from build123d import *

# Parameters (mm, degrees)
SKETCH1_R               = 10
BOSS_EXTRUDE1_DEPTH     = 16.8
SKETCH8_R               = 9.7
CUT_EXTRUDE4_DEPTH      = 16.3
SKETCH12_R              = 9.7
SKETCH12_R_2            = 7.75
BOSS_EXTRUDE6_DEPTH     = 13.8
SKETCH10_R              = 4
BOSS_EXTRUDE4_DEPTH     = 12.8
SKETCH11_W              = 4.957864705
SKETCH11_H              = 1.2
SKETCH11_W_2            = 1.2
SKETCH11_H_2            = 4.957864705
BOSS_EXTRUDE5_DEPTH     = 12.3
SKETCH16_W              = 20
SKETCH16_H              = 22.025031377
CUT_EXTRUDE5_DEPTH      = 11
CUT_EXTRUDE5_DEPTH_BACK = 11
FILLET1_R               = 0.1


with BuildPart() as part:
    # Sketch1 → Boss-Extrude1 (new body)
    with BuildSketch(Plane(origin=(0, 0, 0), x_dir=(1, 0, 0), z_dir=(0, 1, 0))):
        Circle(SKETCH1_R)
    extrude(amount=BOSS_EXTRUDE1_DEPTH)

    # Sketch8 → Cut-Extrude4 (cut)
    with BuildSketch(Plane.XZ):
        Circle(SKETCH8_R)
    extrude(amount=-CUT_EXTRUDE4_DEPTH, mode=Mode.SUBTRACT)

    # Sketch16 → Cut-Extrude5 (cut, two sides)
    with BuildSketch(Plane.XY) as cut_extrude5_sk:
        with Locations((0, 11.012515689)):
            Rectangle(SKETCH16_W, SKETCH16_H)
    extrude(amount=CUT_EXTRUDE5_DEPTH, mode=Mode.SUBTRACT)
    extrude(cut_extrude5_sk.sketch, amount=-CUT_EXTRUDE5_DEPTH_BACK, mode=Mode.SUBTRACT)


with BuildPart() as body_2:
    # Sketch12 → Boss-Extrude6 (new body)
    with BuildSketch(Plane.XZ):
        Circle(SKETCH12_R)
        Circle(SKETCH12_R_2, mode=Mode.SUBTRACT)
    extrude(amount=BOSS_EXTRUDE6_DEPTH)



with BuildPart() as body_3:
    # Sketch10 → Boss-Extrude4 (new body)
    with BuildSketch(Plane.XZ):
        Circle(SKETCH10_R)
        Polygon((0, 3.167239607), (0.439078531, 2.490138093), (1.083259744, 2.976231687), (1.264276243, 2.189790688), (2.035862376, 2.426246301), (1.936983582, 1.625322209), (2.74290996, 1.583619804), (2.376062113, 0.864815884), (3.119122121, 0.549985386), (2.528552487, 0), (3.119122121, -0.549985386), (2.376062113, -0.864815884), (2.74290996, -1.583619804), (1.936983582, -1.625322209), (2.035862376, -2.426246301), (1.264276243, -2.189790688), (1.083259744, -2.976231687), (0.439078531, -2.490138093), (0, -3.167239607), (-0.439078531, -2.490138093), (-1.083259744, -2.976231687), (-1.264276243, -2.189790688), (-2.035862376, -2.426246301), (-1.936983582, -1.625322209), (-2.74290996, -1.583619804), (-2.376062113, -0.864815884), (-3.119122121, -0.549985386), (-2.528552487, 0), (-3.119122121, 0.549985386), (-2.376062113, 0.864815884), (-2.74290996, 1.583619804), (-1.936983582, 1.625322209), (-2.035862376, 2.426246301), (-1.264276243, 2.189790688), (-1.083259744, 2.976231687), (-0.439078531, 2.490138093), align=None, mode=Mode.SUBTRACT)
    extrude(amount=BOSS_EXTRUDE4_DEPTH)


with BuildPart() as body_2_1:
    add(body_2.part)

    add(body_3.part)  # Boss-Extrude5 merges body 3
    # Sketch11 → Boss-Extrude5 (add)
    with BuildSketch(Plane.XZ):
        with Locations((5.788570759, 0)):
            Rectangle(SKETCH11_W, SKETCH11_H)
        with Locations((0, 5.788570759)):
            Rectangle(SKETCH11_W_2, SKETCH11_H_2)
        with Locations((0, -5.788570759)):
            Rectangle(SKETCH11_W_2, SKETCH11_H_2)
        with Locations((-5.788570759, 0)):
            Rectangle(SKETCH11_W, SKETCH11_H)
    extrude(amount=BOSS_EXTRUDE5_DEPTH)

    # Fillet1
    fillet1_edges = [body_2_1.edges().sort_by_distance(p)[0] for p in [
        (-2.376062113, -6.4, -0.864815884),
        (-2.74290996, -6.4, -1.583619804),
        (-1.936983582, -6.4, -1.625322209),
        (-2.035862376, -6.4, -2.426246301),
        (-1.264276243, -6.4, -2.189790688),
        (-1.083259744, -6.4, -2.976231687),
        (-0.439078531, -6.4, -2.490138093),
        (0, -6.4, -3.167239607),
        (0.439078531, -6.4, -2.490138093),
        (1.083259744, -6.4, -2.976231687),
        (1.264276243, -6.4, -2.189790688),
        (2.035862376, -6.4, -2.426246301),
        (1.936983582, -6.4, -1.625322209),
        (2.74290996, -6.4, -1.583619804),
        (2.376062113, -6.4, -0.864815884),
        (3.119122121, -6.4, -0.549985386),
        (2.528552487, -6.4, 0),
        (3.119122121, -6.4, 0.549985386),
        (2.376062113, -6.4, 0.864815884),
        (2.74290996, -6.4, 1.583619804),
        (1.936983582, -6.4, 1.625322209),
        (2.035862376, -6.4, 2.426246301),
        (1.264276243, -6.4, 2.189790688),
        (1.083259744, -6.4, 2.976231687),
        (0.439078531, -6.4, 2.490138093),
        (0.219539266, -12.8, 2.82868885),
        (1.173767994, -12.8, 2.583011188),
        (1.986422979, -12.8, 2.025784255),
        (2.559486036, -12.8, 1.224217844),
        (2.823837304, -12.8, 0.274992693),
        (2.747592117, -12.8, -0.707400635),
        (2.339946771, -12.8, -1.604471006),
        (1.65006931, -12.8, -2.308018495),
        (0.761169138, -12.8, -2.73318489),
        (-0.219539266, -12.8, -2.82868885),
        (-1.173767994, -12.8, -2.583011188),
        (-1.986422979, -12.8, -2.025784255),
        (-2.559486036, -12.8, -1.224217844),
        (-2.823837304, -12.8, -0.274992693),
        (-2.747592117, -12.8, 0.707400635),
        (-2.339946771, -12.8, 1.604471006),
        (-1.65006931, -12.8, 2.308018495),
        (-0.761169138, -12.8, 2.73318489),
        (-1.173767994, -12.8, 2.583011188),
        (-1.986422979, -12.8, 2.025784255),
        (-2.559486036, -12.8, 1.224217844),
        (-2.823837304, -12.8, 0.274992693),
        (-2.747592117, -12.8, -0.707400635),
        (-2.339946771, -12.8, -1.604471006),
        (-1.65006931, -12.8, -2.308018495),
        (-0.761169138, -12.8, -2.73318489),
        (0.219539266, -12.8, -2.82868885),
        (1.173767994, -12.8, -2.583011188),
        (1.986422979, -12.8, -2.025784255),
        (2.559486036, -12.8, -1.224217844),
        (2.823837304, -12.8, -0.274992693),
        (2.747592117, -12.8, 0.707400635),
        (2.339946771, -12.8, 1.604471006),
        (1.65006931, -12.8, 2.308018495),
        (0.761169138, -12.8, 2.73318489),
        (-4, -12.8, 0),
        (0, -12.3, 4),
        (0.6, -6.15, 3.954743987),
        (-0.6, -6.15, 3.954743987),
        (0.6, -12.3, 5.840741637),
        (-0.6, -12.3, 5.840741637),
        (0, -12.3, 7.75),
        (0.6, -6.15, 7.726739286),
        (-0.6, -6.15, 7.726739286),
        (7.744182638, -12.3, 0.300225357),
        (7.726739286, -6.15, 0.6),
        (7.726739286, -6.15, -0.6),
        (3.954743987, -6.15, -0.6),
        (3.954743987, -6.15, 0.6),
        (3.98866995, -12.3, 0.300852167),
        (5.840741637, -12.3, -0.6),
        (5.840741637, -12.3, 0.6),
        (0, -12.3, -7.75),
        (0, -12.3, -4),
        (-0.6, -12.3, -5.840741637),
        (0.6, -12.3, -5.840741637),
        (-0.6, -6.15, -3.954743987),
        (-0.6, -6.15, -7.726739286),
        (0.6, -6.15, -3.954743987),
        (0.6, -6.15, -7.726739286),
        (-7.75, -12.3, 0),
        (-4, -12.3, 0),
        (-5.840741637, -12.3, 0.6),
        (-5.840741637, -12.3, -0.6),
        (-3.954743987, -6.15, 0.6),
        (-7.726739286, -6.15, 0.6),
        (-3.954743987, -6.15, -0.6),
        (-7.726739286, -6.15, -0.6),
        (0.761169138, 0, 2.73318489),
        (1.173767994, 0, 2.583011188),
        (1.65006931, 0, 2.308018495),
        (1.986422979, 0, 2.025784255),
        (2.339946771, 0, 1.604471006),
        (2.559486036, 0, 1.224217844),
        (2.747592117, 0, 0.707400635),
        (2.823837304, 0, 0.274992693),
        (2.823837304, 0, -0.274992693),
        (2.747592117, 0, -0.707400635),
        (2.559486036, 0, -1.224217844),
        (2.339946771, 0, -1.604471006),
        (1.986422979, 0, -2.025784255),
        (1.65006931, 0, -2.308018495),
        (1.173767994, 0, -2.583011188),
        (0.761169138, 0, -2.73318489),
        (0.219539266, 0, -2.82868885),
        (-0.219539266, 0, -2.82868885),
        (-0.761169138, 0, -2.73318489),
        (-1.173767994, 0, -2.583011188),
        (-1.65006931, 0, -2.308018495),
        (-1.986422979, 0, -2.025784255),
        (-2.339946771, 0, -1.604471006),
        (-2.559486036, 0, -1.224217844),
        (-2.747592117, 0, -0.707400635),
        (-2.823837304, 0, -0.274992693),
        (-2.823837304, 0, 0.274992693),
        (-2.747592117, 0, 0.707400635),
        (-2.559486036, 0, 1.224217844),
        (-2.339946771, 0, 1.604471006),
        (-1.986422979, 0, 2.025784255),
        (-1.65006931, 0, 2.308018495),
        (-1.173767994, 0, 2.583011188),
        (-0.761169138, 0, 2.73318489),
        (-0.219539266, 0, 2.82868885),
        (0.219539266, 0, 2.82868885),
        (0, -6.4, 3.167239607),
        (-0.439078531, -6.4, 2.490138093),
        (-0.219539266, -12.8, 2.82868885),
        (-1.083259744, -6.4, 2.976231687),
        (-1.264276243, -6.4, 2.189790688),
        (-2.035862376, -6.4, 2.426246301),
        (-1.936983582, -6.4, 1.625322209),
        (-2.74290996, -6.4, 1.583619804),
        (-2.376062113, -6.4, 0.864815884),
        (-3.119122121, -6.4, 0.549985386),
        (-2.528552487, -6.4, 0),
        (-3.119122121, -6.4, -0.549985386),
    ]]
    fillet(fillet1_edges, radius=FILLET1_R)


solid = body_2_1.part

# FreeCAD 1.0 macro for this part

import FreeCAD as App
import Part
import Sketcher

V = App.Vector


def edges_at(feature, points):
    """Names of the edges that pass closest to the given points."""
    edges = feature.Shape.Edges
    near = lambda p: min(range(len(edges)), key=lambda i: edges[i].distToShape(Part.Vertex(*p))[0])
    return sorted({f"Edge{near(p) + 1}" for p in points})

doc = App.newDocument("Part")
body = doc.addObject("PartDesign::Body", "Body")

sketch1 = doc.addObject("Sketcher::SketchObject", "Sketch")
body.addObject(sketch1)
sketch1.AttachmentSupport = (doc.XZ_Plane, [""])
sketch1.MapMode = "FlatFace"
sketch1.addGeometry(Part.Circle(V(0, 0, 0), V(0, 0, 1), 10), False)
sketch1.addConstraint([
    Sketcher.Constraint("Coincident", 0, 3, -1, 1),
    Sketcher.Constraint("Diameter", 0, 20.0),
])
pad1 = doc.addObject("PartDesign::Pad", "Pad")
body.addObject(pad1)
pad1.Profile = sketch1
pad1.Length = 16.8
pad1.Reversed = True

sketch2 = doc.addObject("Sketcher::SketchObject", "Sketch001")
body.addObject(sketch2)
sketch2.AttachmentSupport = (doc.XZ_Plane, [""])
sketch2.MapMode = "FlatFace"
sketch2.addGeometry(Part.Circle(V(0, 0, 0), V(0, 0, 1), 10), False)
sketch2.addConstraint([
    Sketcher.Constraint("Coincident", 0, 3, -1, 1),
    Sketcher.Constraint("Diameter", 0, 19.4),
])
pocket1 = doc.addObject("PartDesign::Pocket", "Pocket")
body.addObject(pocket1)
pocket1.Profile = sketch2
pocket1.Length = 16.3

sketch3 = doc.addObject("Sketcher::SketchObject", "Sketch002")
body.addObject(sketch3)
sketch3.AttachmentSupport = (doc.XY_Plane, [""])
sketch3.MapMode = "FlatFace"
sketch3.addGeometry([
    Part.LineSegment(V(-10, 22, 0), V(-10, 0, 0)),
    Part.LineSegment(V(-10, 0, 0), V(10, 0, 0)),
    Part.LineSegment(V(10, 0, 0), V(10, 22, 0)),
    Part.LineSegment(V(10, 22, 0), V(-10, 22, 0)),
], False)
sketch3.addConstraint([
    Sketcher.Constraint("Coincident", 0, 2, 1, 1),
    Sketcher.Constraint("Coincident", 1, 2, 2, 1),
    Sketcher.Constraint("Coincident", 2, 2, 3, 1),
    Sketcher.Constraint("Coincident", 3, 2, 0, 1),
    Sketcher.Constraint("Vertical", 0),
    Sketcher.Constraint("Horizontal", 1),
    Sketcher.Constraint("Vertical", 2),
    Sketcher.Constraint("Horizontal", 3),
    Sketcher.Constraint("Symmetric", 0, 2, 1, 2, -1, 1),
    Sketcher.Constraint("DistanceX", 1, 1, 1, 2, 20.0),
    Sketcher.Constraint("DistanceY", 0, 2, 0, 1, 22.025031),
])
pocket2 = doc.addObject("PartDesign::Pocket", "Pocket001")
body.addObject(pocket2)
pocket2.Profile = sketch3
pocket2.Type = "ThroughAll"
pocket2.Midplane = True
body2 = doc.addObject("PartDesign::Body", "Body001")

sketch4 = doc.addObject("Sketcher::SketchObject", "Sketch003")
body2.addObject(sketch4)
sketch4.AttachmentSupport = (doc.getObject("XZ_Plane001"), [""])
sketch4.MapMode = "FlatFace"
sketch4.addGeometry([
    Part.Circle(V(0, 0, 0), V(0, 0, 1), 10),
    Part.Circle(V(0, 0, 0), V(0, 0, 1), 8),
], False)
sketch4.addConstraint([
    Sketcher.Constraint("Coincident", 0, 3, -1, 1),
    Sketcher.Constraint("Coincident", 1, 3, -1, 1),
    Sketcher.Constraint("Diameter", 0, 19.4),
    Sketcher.Constraint("Diameter", 1, 15.5),
])
pad2 = doc.addObject("PartDesign::Pad", "Pad001")
body2.addObject(pad2)
pad2.Profile = sketch4
pad2.Length = 13.8
body3 = doc.addObject("PartDesign::Body", "Body002")

sketch5 = doc.addObject("Sketcher::SketchObject", "Sketch004")
body3.addObject(sketch5)
sketch5.AttachmentSupport = (doc.getObject("XZ_Plane002"), [""])
sketch5.MapMode = "FlatFace"
sketch5.addGeometry([
    Part.Circle(V(0, 0, 0), V(0, 0, 1), 4),
    Part.LineSegment(V(-0.4, 2.5, 0), V(0, 3.2, 0)),
    Part.LineSegment(V(0, 3.2, 0), V(0.4, 2.5, 0)),
    Part.LineSegment(V(0.4, 2.5, 0), V(1.1, 3, 0)),
    Part.LineSegment(V(1.1, 3, 0), V(1.3, 2.2, 0)),
    Part.LineSegment(V(1.3, 2.2, 0), V(2, 2.4, 0)),
    Part.LineSegment(V(2, 2.4, 0), V(1.9, 1.6, 0)),
    Part.LineSegment(V(1.9, 1.6, 0), V(2.7, 1.6, 0)),
    Part.LineSegment(V(2.7, 1.6, 0), V(2.4, 0.9, 0)),
    Part.LineSegment(V(2.4, 0.9, 0), V(3.1, 0.5, 0)),
    Part.LineSegment(V(3.1, 0.5, 0), V(2.5, 0, 0)),
    Part.LineSegment(V(2.5, 0, 0), V(3.1, -0.5, 0)),
    Part.LineSegment(V(3.1, -0.5, 0), V(2.4, -0.9, 0)),
    Part.LineSegment(V(2.4, -0.9, 0), V(2.7, -1.6, 0)),
    Part.LineSegment(V(2.7, -1.6, 0), V(1.9, -1.6, 0)),
    Part.LineSegment(V(1.9, -1.6, 0), V(2, -2.4, 0)),
    Part.LineSegment(V(2, -2.4, 0), V(1.3, -2.2, 0)),
    Part.LineSegment(V(1.3, -2.2, 0), V(1.1, -3, 0)),
    Part.LineSegment(V(1.1, -3, 0), V(0.4, -2.5, 0)),
    Part.LineSegment(V(0.4, -2.5, 0), V(0, -3.2, 0)),
    Part.LineSegment(V(0, -3.2, 0), V(-0.4, -2.5, 0)),
    Part.LineSegment(V(-0.4, -2.5, 0), V(-1.1, -3, 0)),
    Part.LineSegment(V(-1.1, -3, 0), V(-1.3, -2.2, 0)),
    Part.LineSegment(V(-1.3, -2.2, 0), V(-2, -2.4, 0)),
    Part.LineSegment(V(-2, -2.4, 0), V(-1.9, -1.6, 0)),
    Part.LineSegment(V(-1.9, -1.6, 0), V(-2.7, -1.6, 0)),
    Part.LineSegment(V(-2.7, -1.6, 0), V(-2.4, -0.9, 0)),
    Part.LineSegment(V(-2.4, -0.9, 0), V(-3.1, -0.5, 0)),
    Part.LineSegment(V(-3.1, -0.5, 0), V(-2.5, 0, 0)),
    Part.LineSegment(V(-2.5, 0, 0), V(-3.1, 0.5, 0)),
    Part.LineSegment(V(-3.1, 0.5, 0), V(-2.4, 0.9, 0)),
    Part.LineSegment(V(-2.4, 0.9, 0), V(-2.7, 1.6, 0)),
    Part.LineSegment(V(-2.7, 1.6, 0), V(-1.9, 1.6, 0)),
    Part.LineSegment(V(-1.9, 1.6, 0), V(-2, 2.4, 0)),
    Part.LineSegment(V(-2, 2.4, 0), V(-1.3, 2.2, 0)),
    Part.LineSegment(V(-1.3, 2.2, 0), V(-1.1, 3, 0)),
    Part.LineSegment(V(-1.1, 3, 0), V(-0.4, 2.5, 0)),
], False)
sketch5.addConstraint([
    Sketcher.Constraint("Coincident", 1, 2, 2, 1),
    Sketcher.Constraint("Coincident", 2, 2, 3, 1),
    Sketcher.Constraint("Coincident", 3, 2, 4, 1),
    Sketcher.Constraint("Coincident", 4, 2, 5, 1),
    Sketcher.Constraint("Coincident", 5, 2, 6, 1),
    Sketcher.Constraint("Coincident", 6, 2, 7, 1),
    Sketcher.Constraint("Coincident", 7, 2, 8, 1),
    Sketcher.Constraint("Coincident", 8, 2, 9, 1),
    Sketcher.Constraint("Coincident", 9, 2, 10, 1),
    Sketcher.Constraint("Coincident", 10, 2, 11, 1),
    Sketcher.Constraint("Coincident", 11, 2, 12, 1),
    Sketcher.Constraint("Coincident", 12, 2, 13, 1),
    Sketcher.Constraint("Coincident", 13, 2, 14, 1),
    Sketcher.Constraint("Coincident", 14, 2, 15, 1),
    Sketcher.Constraint("Coincident", 15, 2, 16, 1),
    Sketcher.Constraint("Coincident", 16, 2, 17, 1),
    Sketcher.Constraint("Coincident", 17, 2, 18, 1),
    Sketcher.Constraint("Coincident", 18, 2, 19, 1),
    Sketcher.Constraint("Coincident", 19, 2, 20, 1),
    Sketcher.Constraint("Coincident", 20, 2, 21, 1),
    Sketcher.Constraint("Coincident", 21, 2, 22, 1),
    Sketcher.Constraint("Coincident", 22, 2, 23, 1),
    Sketcher.Constraint("Coincident", 23, 2, 24, 1),
    Sketcher.Constraint("Coincident", 24, 2, 25, 1),
    Sketcher.Constraint("Coincident", 25, 2, 26, 1),
    Sketcher.Constraint("Coincident", 26, 2, 27, 1),
    Sketcher.Constraint("Coincident", 27, 2, 28, 1),
    Sketcher.Constraint("Coincident", 28, 2, 29, 1),
    Sketcher.Constraint("Coincident", 29, 2, 30, 1),
    Sketcher.Constraint("Coincident", 30, 2, 31, 1),
    Sketcher.Constraint("Coincident", 31, 2, 32, 1),
    Sketcher.Constraint("Coincident", 32, 2, 33, 1),
    Sketcher.Constraint("Coincident", 33, 2, 34, 1),
    Sketcher.Constraint("Coincident", 34, 2, 35, 1),
    Sketcher.Constraint("Coincident", 35, 2, 36, 1),
    Sketcher.Constraint("Coincident", 36, 2, 1, 1),
    Sketcher.Constraint("Coincident", 0, 3, -1, 1),
    Sketcher.Constraint("Symmetric", 1, 2, 19, 2, -1, 1),
    Sketcher.Constraint("Symmetric", 2, 2, 20, 2, -1, 1),
    Sketcher.Constraint("Symmetric", 3, 2, 21, 2, -1, 1),
    Sketcher.Constraint("Symmetric", 4, 2, 22, 2, -1, 1),
    Sketcher.Constraint("Symmetric", 5, 2, 23, 2, -1, 1),
    Sketcher.Constraint("Symmetric", 6, 2, 24, 2, -1, 1),
    Sketcher.Constraint("Symmetric", 7, 2, 25, 2, -1, 1),
    Sketcher.Constraint("Symmetric", 8, 2, 26, 2, -1, 1),
    Sketcher.Constraint("Symmetric", 9, 2, 27, 2, -1, 1),
    Sketcher.Constraint("Symmetric", 10, 2, 28, 2, -1, 1),
    Sketcher.Constraint("Symmetric", 11, 2, 29, 2, -1, 1),
    Sketcher.Constraint("Symmetric", 12, 2, 30, 2, -1, 1),
    Sketcher.Constraint("Symmetric", 13, 2, 31, 2, -1, 1),
    Sketcher.Constraint("Symmetric", 14, 2, 32, 2, -1, 1),
    Sketcher.Constraint("Symmetric", 15, 2, 33, 2, -1, 1),
    Sketcher.Constraint("Symmetric", 16, 2, 34, 2, -1, 1),
    Sketcher.Constraint("Symmetric", 17, 2, 35, 2, -1, 1),
    Sketcher.Constraint("Symmetric", 18, 2, 36, 2, -1, 1),
    Sketcher.Constraint("Symmetric", 18, 2, 20, 2, -2),
    Sketcher.Constraint("Symmetric", 17, 2, 21, 2, -2),
    Sketcher.Constraint("Symmetric", 16, 2, 22, 2, -2),
    Sketcher.Constraint("Symmetric", 15, 2, 23, 2, -2),
    Sketcher.Constraint("Symmetric", 14, 2, 24, 2, -2),
    Sketcher.Constraint("Symmetric", 13, 2, 25, 2, -2),
    Sketcher.Constraint("Symmetric", 12, 2, 26, 2, -2),
    Sketcher.Constraint("Symmetric", 11, 2, 27, 2, -2),
    Sketcher.Constraint("PointOnObject", 1, 2, -2),
    Sketcher.Constraint("PointOnObject", 10, 2, -1),
    Sketcher.Constraint("Equal", 2, 3),
    Sketcher.Constraint("Equal", 3, 4),
    Sketcher.Constraint("Equal", 4, 5),
    Sketcher.Constraint("Equal", 5, 6),
    Sketcher.Constraint("Equal", 6, 7),
    Sketcher.Constraint("Equal", 7, 8),
    Sketcher.Constraint("Equal", 8, 9),
    Sketcher.Constraint("Equal", 9, 10),
    Sketcher.Constraint("Diameter", 0, 8.0),
    Sketcher.Constraint("DistanceY", 2, 2, 1, 2, 0.677102),
    Sketcher.Constraint("DistanceX", 5, 2, 8, 2, 0.3402),
    Sketcher.Constraint("DistanceY", 11, 2, 8, 2, 1.414801),
    Sketcher.Constraint("DistanceY", -1, 1, 1, 2, 3.16724),
    Sketcher.Constraint("DistanceX", -1, 1, 2, 2, 0.439079),
    Sketcher.Constraint("DistanceX", -1, 1, 3, 2, 1.08326),
    Sketcher.Constraint("DistanceY", -1, 1, 4, 2, 2.189791),
    Sketcher.Constraint("DistanceX", -1, 1, 7, 2, 2.74291),
    Sketcher.Constraint("DistanceY", -1, 1, 7, 2, 1.58362),
    Sketcher.Constraint("DistanceY", 5, 2, 2, 2, 0.063892),
])
pad3 = doc.addObject("PartDesign::Pad", "Pad002")
body3.addObject(pad3)
pad3.Profile = sketch5
pad3.Length = 12.8
body2.AllowCompound = True
doc.recompute()

boolean = doc.addObject("PartDesign::Boolean", "Boolean")
body2.addObject(boolean)
boolean.Type = "Fuse"
boolean.addObjects([body3])

sketch6 = doc.addObject("Sketcher::SketchObject", "Sketch005")
body2.addObject(sketch6)
sketch6.AttachmentSupport = (doc.getObject("XZ_Plane001"), [""])
sketch6.MapMode = "FlatFace"
sketch6.addGeometry([
    Part.LineSegment(V(3.3, 0.6, 0), V(3.3, -0.6, 0)),
    Part.LineSegment(V(3.3, -0.6, 0), V(8.3, -0.6, 0)),
    Part.LineSegment(V(8.3, -0.6, 0), V(8.3, 0.6, 0)),
    Part.LineSegment(V(8.3, 0.6, 0), V(3.3, 0.6, 0)),
    Part.LineSegment(V(-0.6, 8.3, 0), V(-0.6, 3.3, 0)),
    Part.LineSegment(V(-0.6, 3.3, 0), V(0.6, 3.3, 0)),
    Part.LineSegment(V(0.6, 3.3, 0), V(0.6, 8.3, 0)),
    Part.LineSegment(V(0.6, 8.3, 0), V(-0.6, 8.3, 0)),
    Part.LineSegment(V(-0.6, -3.3, 0), V(-0.6, -8.3, 0)),
    Part.LineSegment(V(-0.6, -8.3, 0), V(0.6, -8.3, 0)),
    Part.LineSegment(V(0.6, -8.3, 0), V(0.6, -3.3, 0)),
    Part.LineSegment(V(0.6, -3.3, 0), V(-0.6, -3.3, 0)),
    Part.LineSegment(V(-8.3, 0.6, 0), V(-8.3, -0.6, 0)),
    Part.LineSegment(V(-8.3, -0.6, 0), V(-3.3, -0.6, 0)),
    Part.LineSegment(V(-3.3, -0.6, 0), V(-3.3, 0.6, 0)),
    Part.LineSegment(V(-3.3, 0.6, 0), V(-8.3, 0.6, 0)),
], False)
sketch6.addConstraint([
    Sketcher.Constraint("Coincident", 0, 2, 1, 1),
    Sketcher.Constraint("Coincident", 1, 2, 2, 1),
    Sketcher.Constraint("Coincident", 2, 2, 3, 1),
    Sketcher.Constraint("Coincident", 3, 2, 0, 1),
    Sketcher.Constraint("Coincident", 4, 2, 5, 1),
    Sketcher.Constraint("Coincident", 5, 2, 6, 1),
    Sketcher.Constraint("Coincident", 6, 2, 7, 1),
    Sketcher.Constraint("Coincident", 7, 2, 4, 1),
    Sketcher.Constraint("Coincident", 8, 2, 9, 1),
    Sketcher.Constraint("Coincident", 9, 2, 10, 1),
    Sketcher.Constraint("Coincident", 10, 2, 11, 1),
    Sketcher.Constraint("Coincident", 11, 2, 8, 1),
    Sketcher.Constraint("Coincident", 12, 2, 13, 1),
    Sketcher.Constraint("Coincident", 13, 2, 14, 1),
    Sketcher.Constraint("Coincident", 14, 2, 15, 1),
    Sketcher.Constraint("Coincident", 15, 2, 12, 1),
    Sketcher.Constraint("Vertical", 0),
    Sketcher.Constraint("Horizontal", 1),
    Sketcher.Constraint("Vertical", 2),
    Sketcher.Constraint("Horizontal", 3),
    Sketcher.Constraint("Vertical", 4),
    Sketcher.Constraint("Horizontal", 5),
    Sketcher.Constraint("Vertical", 6),
    Sketcher.Constraint("Horizontal", 7),
    Sketcher.Constraint("Vertical", 8),
    Sketcher.Constraint("Horizontal", 9),
    Sketcher.Constraint("Vertical", 10),
    Sketcher.Constraint("Horizontal", 11),
    Sketcher.Constraint("Vertical", 12),
    Sketcher.Constraint("Horizontal", 13),
    Sketcher.Constraint("Vertical", 14),
    Sketcher.Constraint("Horizontal", 15),
    Sketcher.Constraint("Symmetric", 6, 2, 8, 2, -1, 1),
    Sketcher.Constraint("Symmetric", 4, 2, 10, 2, -1, 1),
    Sketcher.Constraint("Symmetric", 2, 2, 12, 2, -1, 1),
    Sketcher.Constraint("Symmetric", 0, 2, 14, 2, -1, 1),
    Sketcher.Constraint("Horizontal", 1, 2, 12, 2),
    Sketcher.Constraint("Vertical", 7, 2, 8, 2),
    Sketcher.Constraint("Equal", 11, 0),
    Sketcher.Constraint("Equal", 15, 4),
    Sketcher.Constraint("DistanceX", 5, 1, 5, 2, 1.2),
    Sketcher.Constraint("DistanceX", 1, 1, 1, 2, 4.957865),
    Sketcher.Constraint("DistanceX", -1, 1, 0, 2, 3.309638),
    Sketcher.Constraint("DistanceY", -1, 1, 4, 2, 3.309638),
])
pad4 = doc.addObject("PartDesign::Pad", "Pad003")
body2.addObject(pad4)
pad4.Profile = sketch6
pad4.Length = 12.3
doc.recompute()

fillet = doc.addObject("PartDesign::Fillet", "Fillet")
body2.addObject(fillet)
fillet.Base = (pad4, edges_at(pad4, [
    (-2.376, -6.4, -0.865),
    (-2.743, -6.4, -1.584),
    (-1.937, -6.4, -1.625),
    (-2.036, -6.4, -2.426),
    (-1.264, -6.4, -2.19),
    (-1.083, -6.4, -2.976),
    (-0.439, -6.4, -2.49),
    (0, -6.4, -3.167),
    (0.439, -6.4, -2.49),
    (1.083, -6.4, -2.976),
    (1.264, -6.4, -2.19),
    (2.036, -6.4, -2.426),
    (1.937, -6.4, -1.625),
    (2.743, -6.4, -1.584),
    (2.376, -6.4, -0.865),
    (3.119, -6.4, -0.55),
    (2.529, -6.4, 0),
    (3.119, -6.4, 0.55),
    (2.376, -6.4, 0.865),
    (2.743, -6.4, 1.584),
    (1.937, -6.4, 1.625),
    (2.036, -6.4, 2.426),
    (1.264, -6.4, 2.19),
    (1.083, -6.4, 2.976),
    (0.439, -6.4, 2.49),
    (0.22, -12.8, 2.829),
    (1.174, -12.8, 2.583),
    (1.986, -12.8, 2.026),
    (2.559, -12.8, 1.224),
    (2.824, -12.8, 0.275),
    (2.748, -12.8, -0.707),
    (2.34, -12.8, -1.604),
    (1.65, -12.8, -2.308),
    (0.761, -12.8, -2.733),
    (-0.22, -12.8, -2.829),
    (-1.174, -12.8, -2.583),
    (-1.986, -12.8, -2.026),
    (-2.559, -12.8, -1.224),
    (-2.824, -12.8, -0.275),
    (-2.748, -12.8, 0.707),
    (-2.34, -12.8, 1.604),
    (-1.65, -12.8, 2.308),
    (-0.761, -12.8, 2.733),
    (-1.174, -12.8, 2.583),
    (-1.986, -12.8, 2.026),
    (-2.559, -12.8, 1.224),
    (-2.824, -12.8, 0.275),
    (-2.748, -12.8, -0.707),
    (-2.34, -12.8, -1.604),
    (-1.65, -12.8, -2.308),
    (-0.761, -12.8, -2.733),
    (0.22, -12.8, -2.829),
    (1.174, -12.8, -2.583),
    (1.986, -12.8, -2.026),
    (2.559, -12.8, -1.224),
    (2.824, -12.8, -0.275),
    (2.748, -12.8, 0.707),
    (2.34, -12.8, 1.604),
    (1.65, -12.8, 2.308),
    (0.761, -12.8, 2.733),
    (-4, -12.8, 0),
    (0, -12.3, 4),
    (0.6, -6.15, 3.955),
    (-0.6, -6.15, 3.955),
    (0.6, -12.3, 5.841),
    (-0.6, -12.3, 5.841),
    (0, -12.3, 7.75),
    (0.6, -6.15, 7.727),
    (-0.6, -6.15, 7.727),
    (7.744, -12.3, 0.3),
    (7.727, -6.15, 0.6),
    (7.727, -6.15, -0.6),
    (3.955, -6.15, -0.6),
    (3.955, -6.15, 0.6),
    (3.989, -12.3, 0.301),
    (5.841, -12.3, -0.6),
    (5.841, -12.3, 0.6),
    (0, -12.3, -7.75),
    (0, -12.3, -4),
    (-0.6, -12.3, -5.841),
    (0.6, -12.3, -5.841),
    (-0.6, -6.15, -3.955),
    (-0.6, -6.15, -7.727),
    (0.6, -6.15, -3.955),
    (0.6, -6.15, -7.727),
    (-7.75, -12.3, 0),
    (-4, -12.3, 0),
    (-5.841, -12.3, 0.6),
    (-5.841, -12.3, -0.6),
    (-3.955, -6.15, 0.6),
    (-7.727, -6.15, 0.6),
    (-3.955, -6.15, -0.6),
    (-7.727, -6.15, -0.6),
    (0.761, 0, 2.733),
    (1.174, 0, 2.583),
    (1.65, 0, 2.308),
    (1.986, 0, 2.026),
    (2.34, 0, 1.604),
    (2.559, 0, 1.224),
    (2.748, 0, 0.707),
    (2.824, 0, 0.275),
    (2.824, 0, -0.275),
    (2.748, 0, -0.707),
    (2.559, 0, -1.224),
    (2.34, 0, -1.604),
    (1.986, 0, -2.026),
    (1.65, 0, -2.308),
    (1.174, 0, -2.583),
    (0.761, 0, -2.733),
    (0.22, 0, -2.829),
    (-0.22, 0, -2.829),
    (-0.761, 0, -2.733),
    (-1.174, 0, -2.583),
    (-1.65, 0, -2.308),
    (-1.986, 0, -2.026),
    (-2.34, 0, -1.604),
    (-2.559, 0, -1.224),
    (-2.748, 0, -0.707),
    (-2.824, 0, -0.275),
    (-2.824, 0, 0.275),
    (-2.748, 0, 0.707),
    (-2.559, 0, 1.224),
    (-2.34, 0, 1.604),
    (-1.986, 0, 2.026),
    (-1.65, 0, 2.308),
    (-1.174, 0, 2.583),
    (-0.761, 0, 2.733),
    (-0.22, 0, 2.829),
    (0.22, 0, 2.829),
    (0, -6.4, 3.167),
    (-0.439, -6.4, 2.49),
    (-0.22, -12.8, 2.829),
    (-1.083, -6.4, 2.976),
    (-1.264, -6.4, 2.19),
    (-2.036, -6.4, 2.426),
    (-1.937, -6.4, 1.625),
    (-2.743, -6.4, 1.584),
    (-2.376, -6.4, 0.865),
    (-3.119, -6.4, 0.55),
    (-2.529, -6.4, 0),
    (-3.119, -6.4, -0.55),
]))
fillet.Radius = 0.1

doc.recompute()
